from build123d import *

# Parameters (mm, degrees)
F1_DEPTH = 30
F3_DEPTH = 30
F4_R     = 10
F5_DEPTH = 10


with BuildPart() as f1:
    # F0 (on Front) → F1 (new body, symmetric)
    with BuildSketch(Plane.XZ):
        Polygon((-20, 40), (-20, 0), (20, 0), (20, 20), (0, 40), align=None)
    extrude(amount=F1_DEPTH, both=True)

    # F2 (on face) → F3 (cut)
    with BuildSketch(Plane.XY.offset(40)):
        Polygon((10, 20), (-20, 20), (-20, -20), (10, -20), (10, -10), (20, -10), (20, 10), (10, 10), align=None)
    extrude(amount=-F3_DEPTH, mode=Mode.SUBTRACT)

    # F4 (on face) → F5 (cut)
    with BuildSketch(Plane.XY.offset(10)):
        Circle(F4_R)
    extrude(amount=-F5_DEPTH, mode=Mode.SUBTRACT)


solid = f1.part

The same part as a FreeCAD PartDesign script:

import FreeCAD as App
import Part
import Sketcher

V = App.Vector
Q = App.Units.Quantity

doc = App.newDocument("Part")
body = doc.addObject("PartDesign::Body", "Body")

# Sketch on XZ plane
sketch1 = body.newObject("Sketcher::SketchObject", "Sketch")
sketch1.AttachmentSupport = (doc.getObject("XZ_Plane"), [""])
sketch1.MapMode = "FlatFace"
sketch1.addGeometry(Part.LineSegment(V(-20, 40, 0), V(-20, 0, 0)), False)
sketch1.addGeometry(Part.LineSegment(V(-20, 0, 0), V(20, 0, 0)), False)
sketch1.addGeometry(Part.LineSegment(V(20, 0, 0), V(20, 20, 0)), False)
sketch1.addGeometry(Part.LineSegment(V(20, 20, 0), V(0, 40, 0)), False)
sketch1.addGeometry(Part.LineSegment(V(0, 40, 0), V(-20, 40, 0)), False)
sketch1.addConstraint(Sketcher.Constraint("Coincident", 0, 2, 1, 1))
sketch1.addConstraint(Sketcher.Constraint("Coincident", 1, 2, 2, 1))
sketch1.addConstraint(Sketcher.Constraint("Coincident", 2, 2, 3, 1))
sketch1.addConstraint(Sketcher.Constraint("Coincident", 3, 2, 4, 1))
sketch1.addConstraint(Sketcher.Constraint("Coincident", 4, 2, 0, 1))
sketch1.addConstraint(Sketcher.Constraint("Vertical", 0))
sketch1.addConstraint(Sketcher.Constraint("Horizontal", 1))
sketch1.addConstraint(Sketcher.Constraint("Vertical", 2))
sketch1.addConstraint(Sketcher.Constraint("Horizontal", 4))
sketch1.addConstraint(Sketcher.Constraint("Symmetric", 0, 2, 1, 2, -1, 1))
sketch1.addConstraint(Sketcher.Constraint("PointOnObject", 3, 2, -2))
sketch1.addConstraint(Sketcher.Constraint("Equal", 1, 0))
sketch1.addConstraint(Sketcher.Constraint("Equal", 4, 2))
sketch1.addConstraint(Sketcher.Constraint("DistanceX", 1, 1, 1, 2, Q("40 mm")))
pad1 = body.newObject("PartDesign::Pad", "Pad")
pad1.Profile = sketch1
pad1.Length = 60
pad1.Midplane = True

# Sketch on XY plane
sketch2 = body.newObject("Sketcher::SketchObject", "Sketch001")
sketch2.AttachmentSupport = (doc.getObject("XY_Plane"), [""])
sketch2.MapMode = "FlatFace"
sketch2.AttachmentOffset = App.Placement(V(0, 0, 40), App.Rotation())
sketch2.addGeometry(Part.LineSegment(V(10, 20, 0), V(-20, 20, 0)), False)
sketch2.addGeometry(Part.LineSegment(V(-20, 20, 0), V(-20, -20, 0)), False)
sketch2.addGeometry(Part.LineSegment(V(-20, -20, 0), V(10, -20, 0)), False)
sketch2.addGeometry(Part.LineSegment(V(10, -20, 0), V(10, -10, 0)), False)
sketch2.addGeometry(Part.LineSegment(V(10, -10, 0), V(20, -10, 0)), False)
sketch2.addGeometry(Part.LineSegment(V(20, -10, 0), V(20, 10, 0)), False)
sketch2.addGeometry(Part.LineSegment(V(20, 10, 0), V(10, 10, 0)), False)
sketch2.addGeometry(Part.LineSegment(V(10, 10, 0), V(10, 20, 0)), False)
sketch2.addConstraint(Sketcher.Constraint("Coincident", 0, 2, 1, 1))
sketch2.addConstraint(Sketcher.Constraint("Coincident", 1, 2, 2, 1))
sketch2.addConstraint(Sketcher.Constraint("Coincident", 2, 2, 3, 1))
sketch2.addConstraint(Sketcher.Constraint("Coincident", 3, 2, 4, 1))
sketch2.addConstraint(Sketcher.Constraint("Coincident", 4, 2, 5, 1))
sketch2.addConstraint(Sketcher.Constraint("Coincident", 5, 2, 6, 1))
sketch2.addConstraint(Sketcher.Constraint("Coincident", 6, 2, 7, 1))
sketch2.addConstraint(Sketcher.Constraint("Coincident", 7, 2, 0, 1))
sketch2.addConstraint(Sketcher.Constraint("Horizontal", 0))
sketch2.addConstraint(Sketcher.Constraint("Vertical", 1))
sketch2.addConstraint(Sketcher.Constraint("Horizontal", 2))
sketch2.addConstraint(Sketcher.Constraint("Vertical", 3))
sketch2.addConstraint(Sketcher.Constraint("Horizontal", 4))
sketch2.addConstraint(Sketcher.Constraint("Vertical", 5))
sketch2.addConstraint(Sketcher.Constraint("Horizontal", 6))
sketch2.addConstraint(Sketcher.Constraint("Vertical", 7))
sketch2.addConstraint(Sketcher.Constraint("Symmetric", 3, 2, 6, 2, -1))
sketch2.addConstraint(Sketcher.Constraint("Equal", 6, 3))
sketch2.addConstraint(Sketcher.Constraint("Equal", 3, 7))
sketch2.addConstraint(Sketcher.Constraint("DistanceX", 0, 2, 0, 1, Q("30 mm")))
sketch2.addConstraint(Sketcher.Constraint("DistanceX", 4, 1, 4, 2, Q("10 mm")))
sketch2.addConstraint(Sketcher.Constraint("DistanceY", 1, 2, 1, 1, Q("40 mm")))
sketch2.addConstraint(Sketcher.Constraint("DistanceX", 0, 2, -1, 1, Q("20 mm")))
pocket1 = body.newObject("PartDesign::Pocket", "Pocket")
pocket1.Profile = sketch2
pocket1.Length = 30

# Sketch on XY plane
sketch3 = body.newObject("Sketcher::SketchObject", "Sketch002")
sketch3.AttachmentSupport = (doc.getObject("XY_Plane"), [""])
sketch3.MapMode = "FlatFace"
sketch3.AttachmentOffset = App.Placement(V(0, 0, 10), App.Rotation())
sketch3.addGeometry(Part.Circle(V(0, 0, 0), V(0, 0, 1), 10), False)
sketch3.addConstraint(Sketcher.Constraint("Coincident", 0, 3, -1, 1))
sketch3.addConstraint(Sketcher.Constraint("Diameter", 0, Q("20 mm")))
pocket2 = body.newObject("PartDesign::Pocket", "Pocket001")
pocket2.Profile = sketch3
pocket2.Length = 10

doc.recompute()
